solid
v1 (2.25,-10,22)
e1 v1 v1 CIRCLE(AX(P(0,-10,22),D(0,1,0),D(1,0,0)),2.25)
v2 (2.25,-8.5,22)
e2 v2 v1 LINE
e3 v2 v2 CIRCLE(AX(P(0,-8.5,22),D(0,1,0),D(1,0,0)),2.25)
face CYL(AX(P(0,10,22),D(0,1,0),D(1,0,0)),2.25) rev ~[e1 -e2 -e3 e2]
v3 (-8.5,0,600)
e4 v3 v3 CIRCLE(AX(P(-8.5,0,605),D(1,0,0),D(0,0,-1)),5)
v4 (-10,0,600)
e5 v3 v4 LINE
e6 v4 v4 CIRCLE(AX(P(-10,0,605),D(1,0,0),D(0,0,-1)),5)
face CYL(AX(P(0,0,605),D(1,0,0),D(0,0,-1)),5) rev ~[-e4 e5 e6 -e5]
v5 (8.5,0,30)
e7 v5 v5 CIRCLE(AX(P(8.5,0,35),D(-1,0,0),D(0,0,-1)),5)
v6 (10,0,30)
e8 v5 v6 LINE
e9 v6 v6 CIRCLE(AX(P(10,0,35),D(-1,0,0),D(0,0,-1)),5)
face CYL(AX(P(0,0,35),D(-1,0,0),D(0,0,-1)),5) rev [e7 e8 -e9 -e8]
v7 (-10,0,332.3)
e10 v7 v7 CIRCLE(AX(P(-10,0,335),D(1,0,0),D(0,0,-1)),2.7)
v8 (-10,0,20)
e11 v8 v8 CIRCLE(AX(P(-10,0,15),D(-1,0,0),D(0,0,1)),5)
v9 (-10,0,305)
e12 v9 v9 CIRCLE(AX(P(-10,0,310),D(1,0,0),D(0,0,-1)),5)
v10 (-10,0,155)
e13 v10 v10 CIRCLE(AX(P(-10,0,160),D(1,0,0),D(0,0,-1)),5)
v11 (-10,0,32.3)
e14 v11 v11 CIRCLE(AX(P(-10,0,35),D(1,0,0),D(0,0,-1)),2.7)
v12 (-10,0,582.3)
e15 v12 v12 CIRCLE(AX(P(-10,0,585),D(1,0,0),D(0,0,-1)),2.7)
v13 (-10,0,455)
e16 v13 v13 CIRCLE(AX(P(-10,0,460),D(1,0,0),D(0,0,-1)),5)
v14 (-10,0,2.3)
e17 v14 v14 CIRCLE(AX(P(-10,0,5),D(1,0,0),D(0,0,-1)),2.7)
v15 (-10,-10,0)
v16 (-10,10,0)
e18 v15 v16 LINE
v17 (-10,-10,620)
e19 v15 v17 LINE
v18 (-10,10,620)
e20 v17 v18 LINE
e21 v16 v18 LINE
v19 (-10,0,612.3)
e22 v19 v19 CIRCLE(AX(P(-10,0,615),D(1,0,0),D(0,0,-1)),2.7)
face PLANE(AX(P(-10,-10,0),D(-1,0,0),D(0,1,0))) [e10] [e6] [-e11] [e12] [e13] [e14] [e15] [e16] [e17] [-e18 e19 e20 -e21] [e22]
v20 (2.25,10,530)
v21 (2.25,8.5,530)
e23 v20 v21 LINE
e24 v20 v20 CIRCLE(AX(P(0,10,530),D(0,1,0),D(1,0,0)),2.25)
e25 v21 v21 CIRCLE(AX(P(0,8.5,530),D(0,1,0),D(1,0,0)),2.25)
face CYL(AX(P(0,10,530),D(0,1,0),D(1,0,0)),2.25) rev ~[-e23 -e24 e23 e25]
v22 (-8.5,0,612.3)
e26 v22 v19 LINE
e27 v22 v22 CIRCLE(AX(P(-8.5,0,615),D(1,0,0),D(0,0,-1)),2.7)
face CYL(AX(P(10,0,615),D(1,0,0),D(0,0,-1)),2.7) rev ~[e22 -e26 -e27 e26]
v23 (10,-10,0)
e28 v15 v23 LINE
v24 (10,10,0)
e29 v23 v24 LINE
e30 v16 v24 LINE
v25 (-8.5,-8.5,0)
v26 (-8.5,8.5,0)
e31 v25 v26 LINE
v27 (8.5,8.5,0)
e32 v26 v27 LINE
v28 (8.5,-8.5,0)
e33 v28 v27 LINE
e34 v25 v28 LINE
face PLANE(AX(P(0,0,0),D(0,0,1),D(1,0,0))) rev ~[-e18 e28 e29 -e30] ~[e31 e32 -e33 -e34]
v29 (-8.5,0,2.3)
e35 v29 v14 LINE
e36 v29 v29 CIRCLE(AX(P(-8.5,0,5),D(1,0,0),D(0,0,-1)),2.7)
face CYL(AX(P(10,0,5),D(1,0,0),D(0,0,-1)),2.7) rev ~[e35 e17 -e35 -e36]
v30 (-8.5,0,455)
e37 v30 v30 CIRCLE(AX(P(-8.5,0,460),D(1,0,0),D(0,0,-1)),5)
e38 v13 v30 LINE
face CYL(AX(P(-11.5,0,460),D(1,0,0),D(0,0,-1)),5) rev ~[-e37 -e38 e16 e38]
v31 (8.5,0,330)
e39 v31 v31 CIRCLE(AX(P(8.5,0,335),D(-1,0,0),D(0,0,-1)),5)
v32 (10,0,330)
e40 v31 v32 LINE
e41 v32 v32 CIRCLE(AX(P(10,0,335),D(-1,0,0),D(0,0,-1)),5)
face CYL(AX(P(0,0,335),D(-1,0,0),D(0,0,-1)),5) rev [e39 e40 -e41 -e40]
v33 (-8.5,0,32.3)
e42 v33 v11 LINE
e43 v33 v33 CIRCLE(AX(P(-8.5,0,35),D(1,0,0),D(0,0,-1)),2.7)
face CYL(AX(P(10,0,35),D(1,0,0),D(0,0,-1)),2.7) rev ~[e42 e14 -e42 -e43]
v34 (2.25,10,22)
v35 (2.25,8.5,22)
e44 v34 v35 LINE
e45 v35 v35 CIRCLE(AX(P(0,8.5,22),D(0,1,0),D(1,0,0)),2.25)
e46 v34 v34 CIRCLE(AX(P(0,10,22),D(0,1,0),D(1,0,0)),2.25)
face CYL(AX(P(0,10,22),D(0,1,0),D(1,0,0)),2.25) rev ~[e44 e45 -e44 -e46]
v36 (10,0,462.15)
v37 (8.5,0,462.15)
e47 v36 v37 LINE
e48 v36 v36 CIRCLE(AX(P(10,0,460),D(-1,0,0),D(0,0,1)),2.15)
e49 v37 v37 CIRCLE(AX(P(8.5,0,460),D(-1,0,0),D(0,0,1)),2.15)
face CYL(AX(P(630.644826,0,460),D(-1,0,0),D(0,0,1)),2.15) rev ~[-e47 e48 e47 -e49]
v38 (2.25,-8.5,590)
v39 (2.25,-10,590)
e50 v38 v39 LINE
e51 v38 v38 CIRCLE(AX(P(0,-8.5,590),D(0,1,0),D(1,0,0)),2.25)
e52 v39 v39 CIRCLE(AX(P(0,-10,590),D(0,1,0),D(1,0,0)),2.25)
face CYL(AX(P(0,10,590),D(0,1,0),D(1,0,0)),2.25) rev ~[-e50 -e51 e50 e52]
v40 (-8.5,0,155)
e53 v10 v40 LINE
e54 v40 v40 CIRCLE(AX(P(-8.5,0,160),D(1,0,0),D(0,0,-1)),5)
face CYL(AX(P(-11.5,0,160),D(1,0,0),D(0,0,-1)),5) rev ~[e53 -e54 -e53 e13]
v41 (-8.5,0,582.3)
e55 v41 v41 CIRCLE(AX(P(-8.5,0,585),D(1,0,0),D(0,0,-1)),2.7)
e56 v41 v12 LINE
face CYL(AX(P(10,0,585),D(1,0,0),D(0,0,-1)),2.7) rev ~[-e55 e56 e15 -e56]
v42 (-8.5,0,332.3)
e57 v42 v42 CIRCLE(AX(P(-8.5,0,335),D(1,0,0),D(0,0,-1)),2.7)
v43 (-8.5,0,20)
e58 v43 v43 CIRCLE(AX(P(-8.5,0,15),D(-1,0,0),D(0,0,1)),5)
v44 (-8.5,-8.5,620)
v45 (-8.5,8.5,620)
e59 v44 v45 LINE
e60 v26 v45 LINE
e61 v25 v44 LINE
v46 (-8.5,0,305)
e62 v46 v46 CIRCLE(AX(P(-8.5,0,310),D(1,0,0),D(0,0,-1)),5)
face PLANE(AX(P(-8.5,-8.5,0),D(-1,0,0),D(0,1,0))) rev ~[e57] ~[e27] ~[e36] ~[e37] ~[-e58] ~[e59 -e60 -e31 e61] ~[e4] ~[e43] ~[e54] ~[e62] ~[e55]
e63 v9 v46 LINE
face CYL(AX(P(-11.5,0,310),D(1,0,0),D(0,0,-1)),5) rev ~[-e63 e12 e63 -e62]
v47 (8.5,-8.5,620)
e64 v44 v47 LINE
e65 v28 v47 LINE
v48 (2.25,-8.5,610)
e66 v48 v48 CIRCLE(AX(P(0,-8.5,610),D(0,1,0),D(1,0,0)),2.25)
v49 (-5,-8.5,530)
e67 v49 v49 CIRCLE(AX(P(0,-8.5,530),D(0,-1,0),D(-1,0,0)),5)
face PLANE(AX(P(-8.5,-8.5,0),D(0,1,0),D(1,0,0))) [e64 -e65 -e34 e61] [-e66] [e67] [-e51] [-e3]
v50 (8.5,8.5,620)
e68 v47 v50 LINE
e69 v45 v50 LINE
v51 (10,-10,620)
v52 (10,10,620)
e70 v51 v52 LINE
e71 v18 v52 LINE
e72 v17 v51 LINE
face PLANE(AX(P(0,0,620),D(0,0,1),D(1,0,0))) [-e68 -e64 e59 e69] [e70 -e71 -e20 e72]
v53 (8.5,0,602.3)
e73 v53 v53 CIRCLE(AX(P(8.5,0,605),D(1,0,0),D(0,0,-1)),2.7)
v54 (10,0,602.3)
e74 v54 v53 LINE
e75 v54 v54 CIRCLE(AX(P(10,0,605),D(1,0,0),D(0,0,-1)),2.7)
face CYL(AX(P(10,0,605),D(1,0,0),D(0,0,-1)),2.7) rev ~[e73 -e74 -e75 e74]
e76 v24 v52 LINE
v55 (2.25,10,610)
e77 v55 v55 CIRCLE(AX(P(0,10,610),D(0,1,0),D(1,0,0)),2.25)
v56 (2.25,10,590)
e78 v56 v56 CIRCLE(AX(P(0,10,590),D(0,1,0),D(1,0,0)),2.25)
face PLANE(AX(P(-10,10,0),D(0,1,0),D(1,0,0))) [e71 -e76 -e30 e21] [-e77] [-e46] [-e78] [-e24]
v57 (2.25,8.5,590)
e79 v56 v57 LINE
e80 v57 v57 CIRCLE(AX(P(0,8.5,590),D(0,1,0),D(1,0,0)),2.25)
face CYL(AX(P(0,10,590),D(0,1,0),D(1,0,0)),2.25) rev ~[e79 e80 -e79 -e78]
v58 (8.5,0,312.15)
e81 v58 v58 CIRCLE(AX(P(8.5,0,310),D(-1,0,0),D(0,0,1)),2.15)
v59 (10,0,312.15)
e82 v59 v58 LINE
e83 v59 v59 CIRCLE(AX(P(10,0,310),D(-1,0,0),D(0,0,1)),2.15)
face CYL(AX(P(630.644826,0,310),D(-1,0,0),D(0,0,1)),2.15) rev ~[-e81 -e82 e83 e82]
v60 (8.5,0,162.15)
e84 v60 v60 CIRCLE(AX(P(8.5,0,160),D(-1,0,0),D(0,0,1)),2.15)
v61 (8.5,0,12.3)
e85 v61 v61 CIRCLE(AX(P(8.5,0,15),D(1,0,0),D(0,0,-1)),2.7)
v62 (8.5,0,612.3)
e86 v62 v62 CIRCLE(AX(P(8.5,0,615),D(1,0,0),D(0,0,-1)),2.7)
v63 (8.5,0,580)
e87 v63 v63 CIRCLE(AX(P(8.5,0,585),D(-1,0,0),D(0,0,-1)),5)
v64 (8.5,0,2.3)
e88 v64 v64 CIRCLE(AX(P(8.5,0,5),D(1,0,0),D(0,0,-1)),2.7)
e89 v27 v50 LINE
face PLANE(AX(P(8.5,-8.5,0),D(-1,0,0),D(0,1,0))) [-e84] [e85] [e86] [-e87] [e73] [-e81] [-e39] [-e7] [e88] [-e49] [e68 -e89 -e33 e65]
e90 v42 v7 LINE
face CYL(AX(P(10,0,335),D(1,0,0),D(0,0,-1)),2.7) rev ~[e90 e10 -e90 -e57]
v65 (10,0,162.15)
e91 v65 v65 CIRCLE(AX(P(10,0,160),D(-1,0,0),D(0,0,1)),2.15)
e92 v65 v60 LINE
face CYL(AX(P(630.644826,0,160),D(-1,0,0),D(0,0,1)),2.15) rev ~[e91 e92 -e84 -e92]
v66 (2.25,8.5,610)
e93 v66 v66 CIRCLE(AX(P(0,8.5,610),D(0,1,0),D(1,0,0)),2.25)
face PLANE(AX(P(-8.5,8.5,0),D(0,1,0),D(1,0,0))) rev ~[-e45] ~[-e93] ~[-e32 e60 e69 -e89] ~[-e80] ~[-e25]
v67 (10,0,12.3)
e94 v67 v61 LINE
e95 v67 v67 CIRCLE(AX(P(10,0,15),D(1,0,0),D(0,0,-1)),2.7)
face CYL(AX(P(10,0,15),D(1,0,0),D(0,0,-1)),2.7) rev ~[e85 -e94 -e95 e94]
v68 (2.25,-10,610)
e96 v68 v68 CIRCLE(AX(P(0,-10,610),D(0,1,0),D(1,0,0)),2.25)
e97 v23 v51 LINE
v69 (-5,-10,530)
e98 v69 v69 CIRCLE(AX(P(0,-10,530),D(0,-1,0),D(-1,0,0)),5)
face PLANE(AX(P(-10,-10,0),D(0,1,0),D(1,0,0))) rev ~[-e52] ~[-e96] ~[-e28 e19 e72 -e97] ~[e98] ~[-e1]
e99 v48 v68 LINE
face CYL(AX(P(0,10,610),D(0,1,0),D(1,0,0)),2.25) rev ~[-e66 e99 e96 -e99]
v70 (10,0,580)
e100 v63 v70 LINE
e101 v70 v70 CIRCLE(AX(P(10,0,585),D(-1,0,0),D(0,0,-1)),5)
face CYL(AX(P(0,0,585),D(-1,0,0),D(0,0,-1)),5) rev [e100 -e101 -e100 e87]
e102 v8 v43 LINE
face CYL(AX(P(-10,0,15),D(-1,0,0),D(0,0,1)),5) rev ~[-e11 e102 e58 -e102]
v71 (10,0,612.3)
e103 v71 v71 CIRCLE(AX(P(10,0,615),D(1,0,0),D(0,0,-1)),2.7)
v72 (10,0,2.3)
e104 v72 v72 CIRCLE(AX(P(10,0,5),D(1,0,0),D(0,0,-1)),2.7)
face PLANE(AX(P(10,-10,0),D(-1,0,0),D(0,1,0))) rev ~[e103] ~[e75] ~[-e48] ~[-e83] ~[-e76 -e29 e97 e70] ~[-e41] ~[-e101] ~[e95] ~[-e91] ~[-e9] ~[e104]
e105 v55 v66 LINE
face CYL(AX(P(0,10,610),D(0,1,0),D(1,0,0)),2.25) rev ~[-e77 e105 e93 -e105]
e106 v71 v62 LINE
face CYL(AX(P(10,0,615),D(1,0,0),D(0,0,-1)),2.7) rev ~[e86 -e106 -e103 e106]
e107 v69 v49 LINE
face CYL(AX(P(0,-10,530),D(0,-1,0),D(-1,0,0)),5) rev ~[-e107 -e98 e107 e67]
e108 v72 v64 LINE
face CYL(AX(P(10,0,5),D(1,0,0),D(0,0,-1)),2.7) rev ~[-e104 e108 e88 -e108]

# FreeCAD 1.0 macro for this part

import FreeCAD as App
import Part
import Sketcher
from FreeCAD import Vector

doc = App.newDocument("Part")
params = doc.addObject("Spreadsheet::Sheet", "Params")
for row, (alias, value) in enumerate([
    ("sketch1_width", "20 mm"),
    ("sketch1_width2", "17 mm"),
    ("pad1_length", "620 mm"),
    ("sketch2_diameter", "5.4 mm"),
    ("pocket1_length", "25 mm"),
    ("sketch3_diameter", "4.5 mm"),
    ("pocket2_length", "25 mm"),
    ("sketch4_diameter", "5.4 mm"),
    ("pocket3_length", "40 mm"),
    ("sketch5_diameter", "10 mm"),
    ("pocket4_length", "10 mm"),
    ("sketch6_diameter", "10 mm"),
    ("pocket5_length", "20 mm"),
    ("sketch7_diameter", "10 mm"),
    ("pocket6_length", "30 mm"),
    ("sketch8_diameter", "10 mm"),
    ("pocket7_length", "5 mm"),
    ("sketch9_diameter", "4.3 mm"),
    ("hole_diameter", "4.3 mm"),
    ("sketch10_diameter", "10 mm"),
    ("hole2_diameter", "10 mm"),
    ("hole2_depth", "1.5 mm"),
], start=1):
    params.set(f"A{row}", alias)
    params.set(f"B{row}", "=" + value)
    params.setAlias(f"B{row}", alias)

body = doc.addObject("PartDesign::Body", "Body")

sketch1 = doc.addObject("Sketcher::SketchObject", "Sketch")
body.addObject(sketch1)
sketch1.AttachmentSupport = (doc.XY_Plane, [""])
sketch1.MapMode = "FlatFace"
sketch1.addGeometry([
    Part.LineSegment(Vector(-10, 10, 0), Vector(-10, -10, 0)),
    Part.LineSegment(Vector(-10, -10, 0), Vector(10, -10, 0)),
    Part.LineSegment(Vector(10, -10, 0), Vector(10, 10, 0)),
    Part.LineSegment(Vector(10, 10, 0), Vector(-10, 10, 0)),
    Part.LineSegment(Vector(8.5, -8.5, 0), Vector(-8.5, -8.5, 0)),
    Part.LineSegment(Vector(-8.5, -8.5, 0), Vector(-8.5, 8.5, 0)),
    Part.LineSegment(Vector(-8.5, 8.5, 0), Vector(8.5, 8.5, 0)),
    Part.LineSegment(Vector(8.5, 8.5, 0), Vector(8.5, -8.5, 0)),
], False)
sketch1.addConstraint([
    Sketcher.Constraint("Coincident", 0, 2, 1, 1),
    Sketcher.Constraint("Coincident", 1, 2, 2, 1),
    Sketcher.Constraint("Coincident", 2, 2, 3, 1),
    Sketcher.Constraint("Coincident", 3, 2, 0, 1),
    Sketcher.Constraint("Coincident", 4, 2, 5, 1),
    Sketcher.Constraint("Coincident", 5, 2, 6, 1),
    Sketcher.Constraint("Coincident", 6, 2, 7, 1),
    Sketcher.Constraint("Coincident", 7, 2, 4, 1),
    Sketcher.Constraint("Vertical", 0),
    Sketcher.Constraint("Horizontal", 1),
    Sketcher.Constraint("Vertical", 2),
    Sketcher.Constraint("Horizontal", 3),
    Sketcher.Constraint("Horizontal", 4),
    Sketcher.Constraint("Vertical", 5),
    Sketcher.Constraint("Horizontal", 6),
    Sketcher.Constraint("Vertical", 7),
    Sketcher.Constraint("Symmetric", 0, 2, 2, 2, -1, 1),
    Sketcher.Constraint("Symmetric", 4, 2, 6, 2, -1, 1),
    Sketcher.Constraint("Equal", 3, 0),
    Sketcher.Constraint("Equal", 6, 5),
    Sketcher.Constraint("DistanceX", 1, 1, 1, 2, 20.0),
    Sketcher.Constraint("DistanceX", 4, 2, 4, 1, 17.0),
])
sketch1.setExpression("Constraints[20]", "Params.sketch1_width")
sketch1.setExpression("Constraints[21]", "Params.sketch1_width2")
pad1 = doc.addObject("PartDesign::Pad", "Pad")
body.addObject(pad1)
pad1.Profile = sketch1
pad1.setExpression("Length", "Params.pad1_length")

sketch2 = doc.addObject("Sketcher::SketchObject", "Sketch001")
body.addObject(sketch2)
sketch2.AttachmentSupport = (doc.YZ_Plane, [""])
sketch2.MapMode = "FlatFace"
sketch2.AttachmentOffset = App.Placement(Vector(0, 0, 10), App.Rotation())
sketch2.addGeometry([
    Part.Circle(Vector(0, 585, 0), Vector(0, 0, 1), 2.7),
    Part.Circle(Vector(0, 35, 0), Vector(0, 0, 1), 2.7),
    Part.Circle(Vector(0, 335, 0), Vector(0, 0, 1), 2.7),
], False)
sketch2.addConstraint([
    Sketcher.Constraint("Equal", 0, 1),
    Sketcher.Constraint("Equal", 1, 2),
    Sketcher.Constraint("PointOnObject", 0, 3, -2),
    Sketcher.Constraint("PointOnObject", 1, 3, -2),
    Sketcher.Constraint("PointOnObject", 2, 3, -2),
    Sketcher.Constraint("Diameter", 0, 5.4),
    Sketcher.Constraint("DistanceY", -1, 1, 0, 3, 585.0),
    Sketcher.Constraint("DistanceY", -1, 1, 1, 3, 35.0),
    Sketcher.Constraint("DistanceY", -1, 1, 2, 3, 335.0),
])
sketch2.setExpression("Constraints[5]", "Params.sketch2_diameter")
pocket1 = doc.addObject("PartDesign::Pocket", "Pocket")
body.addObject(pocket1)
pocket1.Profile = sketch2
pocket1.setExpression("Length", "Params.pocket1_length")

sketch3 = doc.addObject("Sketcher::SketchObject", "Sketch002")
body.addObject(sketch3)
sketch3.AttachmentSupport = (doc.XZ_Plane, [""])
sketch3.MapMode = "FlatFace"
sketch3.AttachmentOffset = App.Placement(Vector(0, 0, -10), App.Rotation())
sketch3.addGeometry([
    Part.Circle(Vector(0, 22, 0), Vector(0, 0, 1), 2.25),
    Part.Circle(Vector(0, 610, 0), Vector(0, 0, 1), 2.25),
    Part.Circle(Vector(0, 530, 0), Vector(0, 0, 1), 2.25),
    Part.Circle(Vector(0, 590, 0), Vector(0, 0, 1), 2.25),
], False)
sketch3.addConstraint([
    Sketcher.Constraint("Equal", 0, 1),
    Sketcher.Constraint("Equal", 1, 2),
    Sketcher.Constraint("Equal", 2, 3),
    Sketcher.Constraint("PointOnObject", 0, 3, -2),
    Sketcher.Constraint("PointOnObject", 1, 3, -2),
    Sketcher.Constraint("PointOnObject", 2, 3, -2),
    Sketcher.Constraint("PointOnObject", 3, 3, -2),
    Sketcher.Constraint("Diameter", 0, 4.5),
    Sketcher.Constraint("DistanceY", -1, 1, 0, 3, 22.0),
    Sketcher.Constraint("DistanceY", -1, 1, 1, 3, 610.0),
    Sketcher.Constraint("DistanceY", -1, 1, 2, 3, 530.0),
    Sketcher.Constraint("DistanceY", -1, 1, 3, 3, 590.0),
])
sketch3.setExpression("Constraints[7]", "Params.sketch3_diameter")
pocket2 = doc.addObject("PartDesign::Pocket", "Pocket001")
body.addObject(pocket2)
pocket2.Profile = sketch3
pocket2.setExpression("Length", "Params.pocket2_length")
pocket2.Reversed = True

sketch4 = doc.addObject("Sketcher::SketchObject", "Sketch003")
body.addObject(sketch4)
sketch4.AttachmentSupport = (doc.YZ_Plane, [""])
sketch4.MapMode = "FlatFace"
sketch4.AttachmentOffset = App.Placement(Vector(0, 0, 10), App.Rotation())
sketch4.addGeometry([
    Part.Circle(Vector(0, 15, 0), Vector(0, 0, 1), 2.7),
    Part.Circle(Vector(0, 5, 0), Vector(0, 0, 1), 2.7),
    Part.Circle(Vector(0, 615, 0), Vector(0, 0, 1), 2.7),
    Part.Circle(Vector(0, 605, 0), Vector(0, 0, 1), 2.7),
], False)
sketch4.addConstraint([
    Sketcher.Constraint("Equal", 0, 1),
    Sketcher.Constraint("Equal", 1, 2),
    Sketcher.Constraint("Equal", 2, 3),
    Sketcher.Constraint("PointOnObject", 0, 3, -2),
    Sketcher.Constraint("PointOnObject", 1, 3, -2),
    Sketcher.Constraint("PointOnObject", 2, 3, -2),
    Sketcher.Constraint("PointOnObject", 3, 3, -2),
    Sketcher.Constraint("Diameter", 0, 5.4),
    Sketcher.Constraint("DistanceY", -1, 1, 0, 3, 15.0),
    Sketcher.Constraint("DistanceY", -1, 1, 1, 3, 5.0),
    Sketcher.Constraint("DistanceY", -1, 1, 2, 3, 615.0),
    Sketcher.Constraint("DistanceY", -1, 1, 3, 3, 605.0),
])
sketch4.setExpression("Constraints[7]", "Params.sketch4_diameter")
pocket3 = doc.addObject("PartDesign::Pocket", "Pocket002")
body.addObject(pocket3)
pocket3.Profile = sketch4
pocket3.setExpression("Length", "Params.pocket3_length")

sketch5 = doc.addObject("Sketcher::SketchObject", "Sketch004")
body.addObject(sketch5)
sketch5.AttachmentSupport = (doc.XZ_Plane, [""])
sketch5.MapMode = "FlatFace"
sketch5.AttachmentOffset = App.Placement(Vector(0, 0, 10), App.Rotation())
sketch5.addGeometry(Part.Circle(Vector(0, 530, 0), Vector(0, 0, 1), 5), False)
sketch5.addConstraint([
    Sketcher.Constraint("PointOnObject", 0, 3, -2),
    Sketcher.Constraint("Diameter", 0, 10.0),
    Sketcher.Constraint("DistanceY", -1, 1, 0, 3, 530.0),
])
sketch5.setExpression("Constraints[1]", "Params.sketch5_diameter")
pocket4 = doc.addObject("PartDesign::Pocket", "Pocket003")
body.addObject(pocket4)
pocket4.Profile = sketch5
pocket4.setExpression("Length", "Params.pocket4_length")

sketch6 = doc.addObject("Sketcher::SketchObject", "Sketch005")
body.addObject(sketch6)
sketch6.AttachmentSupport = (doc.YZ_Plane, [""])
sketch6.MapMode = "FlatFace"
sketch6.addGeometry([
    Part.Circle(Vector(0, 585, 0), Vector(0, 0, 1), 5),
    Part.Circle(Vector(0, 335, 0), Vector(0, 0, 1), 5),
    Part.Circle(Vector(0, 35, 0), Vector(0, 0, 1), 5),
], False)
sketch6.addConstraint([
    Sketcher.Constraint("Equal", 0, 1),
    Sketcher.Constraint("Equal", 1, 2),
    Sketcher.Constraint("PointOnObject", 0, 3, -2),
    Sketcher.Constraint("PointOnObject", 1, 3, -2),
    Sketcher.Constraint("PointOnObject", 2, 3, -2),
    Sketcher.Constraint("Diameter", 0, 10.0),
    Sketcher.Constraint("DistanceY", -1, 1, 0, 3, 585.0),
    Sketcher.Constraint("DistanceY", -1, 1, 1, 3, 335.0),
    Sketcher.Constraint("DistanceY", -1, 1, 2, 3, 35.0),
])
sketch6.setExpression("Constraints[5]", "Params.sketch6_diameter")
pocket5 = doc.addObject("PartDesign::Pocket", "Pocket004")
body.addObject(pocket5)
pocket5.Profile = sketch6
pocket5.setExpression("Length", "Params.pocket5_length")
pocket5.Reversed = True

sketch7 = doc.addObject("Sketcher::SketchObject", "Sketch006")
body.addObject(sketch7)
sketch7.AttachmentSupport = (doc.YZ_Plane, [""])
sketch7.MapMode = "FlatFace"
sketch7.addGeometry(Part.Circle(Vector(0, 605, 0), Vector(0, 0, 1), 5), False)
sketch7.addConstraint([
    Sketcher.Constraint("PointOnObject", 0, 3, -2),
    Sketcher.Constraint("Diameter", 0, 10.0),
    Sketcher.Constraint("DistanceY", -1, 1, 0, 3, 605.0),
])
sketch7.setExpression("Constraints[1]", "Params.sketch7_diameter")
pocket6 = doc.addObject("PartDesign::Pocket", "Pocket005")
body.addObject(pocket6)
pocket6.Profile = sketch7
pocket6.setExpression("Length", "Params.pocket6_length")

sketch8 = doc.addObject("Sketcher::SketchObject", "Sketch007")
body.addObject(sketch8)
sketch8.AttachmentSupport = (doc.YZ_Plane, [""])
sketch8.MapMode = "FlatFace"
sketch8.AttachmentOffset = App.Placement(Vector(0, 0, -10), App.Rotation())
sketch8.addGeometry(Part.Circle(Vector(0, 15, 0), Vector(0, 0, 1), 5), False)
sketch8.addConstraint([
    Sketcher.Constraint("PointOnObject", 0, 3, -2),
    Sketcher.Constraint("Diameter", 0, 10.0),
    Sketcher.Constraint("DistanceY", -1, 1, 0, 3, 15.0),
])
sketch8.setExpression("Constraints[1]", "Params.sketch8_diameter")
pocket7 = doc.addObject("PartDesign::Pocket", "Pocket006")
body.addObject(pocket7)
pocket7.Profile = sketch8
pocket7.setExpression("Length", "Params.pocket7_length")
pocket7.Reversed = True

sketch9 = doc.addObject("Sketcher::SketchObject", "Sketch008")
body.addObject(sketch9)
sketch9.AttachmentSupport = (doc.YZ_Plane, [""])
sketch9.MapMode = "FlatFace"
sketch9.AttachmentOffset = App.Placement(Vector(0, 0, 10), App.Rotation())
sketch9.addGeometry([
    Part.Circle(Vector(0, 460, 0), Vector(0, 0, 1), 2.15),
    Part.Circle(Vector(0, 310, 0), Vector(0, 0, 1), 2.15),
    Part.Circle(Vector(0, 160, 0), Vector(0, 0, 1), 2.15),
], False)
sketch9.addConstraint([
    Sketcher.Constraint("Equal", 0, 1),
    Sketcher.Constraint("Equal", 1, 2),
    Sketcher.Constraint("PointOnObject", 0, 3, -2),
    Sketcher.Constraint("PointOnObject", 1, 3, -2),
    Sketcher.Constraint("PointOnObject", 2, 3, -2),
    Sketcher.Constraint("Diameter", 0, 4.3),
    Sketcher.Constraint("DistanceY", -1, 1, 0, 3, 460.0),
    Sketcher.Constraint("DistanceY", -1, 1, 1, 3, 310.0),
    Sketcher.Constraint("DistanceY", -1, 1, 2, 3, 160.0),
])
sketch9.setExpression("Constraints[5]", "Params.sketch9_diameter")
doc.recompute()
hole = doc.addObject("PartDesign::Hole", "Hole")
body.addObject(hole)
hole.Profile = sketch9
hole.ThreadType = "None"
hole.setExpression("Diameter", "Params.hole_diameter")
hole.DepthType = "ThroughAll"

sketch10 = doc.addObject("Sketcher::SketchObject", "Sketch009")
body.addObject(sketch10)
sketch10.AttachmentSupport = (doc.YZ_Plane, [""])
sketch10.MapMode = "FlatFace"
sketch10.AttachmentOffset = App.Placement(Vector(0, 0, -10), App.Rotation())
sketch10.addGeometry([
    Part.Circle(Vector(0, 160, 0), Vector(0, 0, 1), 5),
    Part.Circle(Vector(0, 310, 0), Vector(0, 0, 1), 5),
    Part.Circle(Vector(0, 460, 0), Vector(0, 0, 1), 5),
], False)
sketch10.addConstraint([
    Sketcher.Constraint("Equal", 0, 1),
    Sketcher.Constraint("Equal", 1, 2),
    Sketcher.Constraint("PointOnObject", 0, 3, -2),
    Sketcher.Constraint("PointOnObject", 1, 3, -2),
    Sketcher.Constraint("PointOnObject", 2, 3, -2),
    Sketcher.Constraint("Diameter", 0, 10.0),
    Sketcher.Constraint("DistanceY", -1, 1, 0, 3, 160.0),
    Sketcher.Constraint("DistanceY", -1, 1, 1, 3, 310.0),
    Sketcher.Constraint("DistanceY", -1, 1, 2, 3, 460.0),
])
sketch10.setExpression("Constraints[5]", "Params.sketch10_diameter")
doc.recompute()
hole2 = doc.addObject("PartDesign::Hole", "Hole001")
body.addObject(hole2)
hole2.Profile = sketch10
hole2.ThreadType = "None"
hole2.setExpression("Diameter", "Params.hole2_diameter")
hole2.DepthType = "Dimension"
hole2.setExpression("Depth", "Params.hole2_depth")
hole2.DrillPoint = "Flat"
hole2.Reversed = True

doc.recompute()
